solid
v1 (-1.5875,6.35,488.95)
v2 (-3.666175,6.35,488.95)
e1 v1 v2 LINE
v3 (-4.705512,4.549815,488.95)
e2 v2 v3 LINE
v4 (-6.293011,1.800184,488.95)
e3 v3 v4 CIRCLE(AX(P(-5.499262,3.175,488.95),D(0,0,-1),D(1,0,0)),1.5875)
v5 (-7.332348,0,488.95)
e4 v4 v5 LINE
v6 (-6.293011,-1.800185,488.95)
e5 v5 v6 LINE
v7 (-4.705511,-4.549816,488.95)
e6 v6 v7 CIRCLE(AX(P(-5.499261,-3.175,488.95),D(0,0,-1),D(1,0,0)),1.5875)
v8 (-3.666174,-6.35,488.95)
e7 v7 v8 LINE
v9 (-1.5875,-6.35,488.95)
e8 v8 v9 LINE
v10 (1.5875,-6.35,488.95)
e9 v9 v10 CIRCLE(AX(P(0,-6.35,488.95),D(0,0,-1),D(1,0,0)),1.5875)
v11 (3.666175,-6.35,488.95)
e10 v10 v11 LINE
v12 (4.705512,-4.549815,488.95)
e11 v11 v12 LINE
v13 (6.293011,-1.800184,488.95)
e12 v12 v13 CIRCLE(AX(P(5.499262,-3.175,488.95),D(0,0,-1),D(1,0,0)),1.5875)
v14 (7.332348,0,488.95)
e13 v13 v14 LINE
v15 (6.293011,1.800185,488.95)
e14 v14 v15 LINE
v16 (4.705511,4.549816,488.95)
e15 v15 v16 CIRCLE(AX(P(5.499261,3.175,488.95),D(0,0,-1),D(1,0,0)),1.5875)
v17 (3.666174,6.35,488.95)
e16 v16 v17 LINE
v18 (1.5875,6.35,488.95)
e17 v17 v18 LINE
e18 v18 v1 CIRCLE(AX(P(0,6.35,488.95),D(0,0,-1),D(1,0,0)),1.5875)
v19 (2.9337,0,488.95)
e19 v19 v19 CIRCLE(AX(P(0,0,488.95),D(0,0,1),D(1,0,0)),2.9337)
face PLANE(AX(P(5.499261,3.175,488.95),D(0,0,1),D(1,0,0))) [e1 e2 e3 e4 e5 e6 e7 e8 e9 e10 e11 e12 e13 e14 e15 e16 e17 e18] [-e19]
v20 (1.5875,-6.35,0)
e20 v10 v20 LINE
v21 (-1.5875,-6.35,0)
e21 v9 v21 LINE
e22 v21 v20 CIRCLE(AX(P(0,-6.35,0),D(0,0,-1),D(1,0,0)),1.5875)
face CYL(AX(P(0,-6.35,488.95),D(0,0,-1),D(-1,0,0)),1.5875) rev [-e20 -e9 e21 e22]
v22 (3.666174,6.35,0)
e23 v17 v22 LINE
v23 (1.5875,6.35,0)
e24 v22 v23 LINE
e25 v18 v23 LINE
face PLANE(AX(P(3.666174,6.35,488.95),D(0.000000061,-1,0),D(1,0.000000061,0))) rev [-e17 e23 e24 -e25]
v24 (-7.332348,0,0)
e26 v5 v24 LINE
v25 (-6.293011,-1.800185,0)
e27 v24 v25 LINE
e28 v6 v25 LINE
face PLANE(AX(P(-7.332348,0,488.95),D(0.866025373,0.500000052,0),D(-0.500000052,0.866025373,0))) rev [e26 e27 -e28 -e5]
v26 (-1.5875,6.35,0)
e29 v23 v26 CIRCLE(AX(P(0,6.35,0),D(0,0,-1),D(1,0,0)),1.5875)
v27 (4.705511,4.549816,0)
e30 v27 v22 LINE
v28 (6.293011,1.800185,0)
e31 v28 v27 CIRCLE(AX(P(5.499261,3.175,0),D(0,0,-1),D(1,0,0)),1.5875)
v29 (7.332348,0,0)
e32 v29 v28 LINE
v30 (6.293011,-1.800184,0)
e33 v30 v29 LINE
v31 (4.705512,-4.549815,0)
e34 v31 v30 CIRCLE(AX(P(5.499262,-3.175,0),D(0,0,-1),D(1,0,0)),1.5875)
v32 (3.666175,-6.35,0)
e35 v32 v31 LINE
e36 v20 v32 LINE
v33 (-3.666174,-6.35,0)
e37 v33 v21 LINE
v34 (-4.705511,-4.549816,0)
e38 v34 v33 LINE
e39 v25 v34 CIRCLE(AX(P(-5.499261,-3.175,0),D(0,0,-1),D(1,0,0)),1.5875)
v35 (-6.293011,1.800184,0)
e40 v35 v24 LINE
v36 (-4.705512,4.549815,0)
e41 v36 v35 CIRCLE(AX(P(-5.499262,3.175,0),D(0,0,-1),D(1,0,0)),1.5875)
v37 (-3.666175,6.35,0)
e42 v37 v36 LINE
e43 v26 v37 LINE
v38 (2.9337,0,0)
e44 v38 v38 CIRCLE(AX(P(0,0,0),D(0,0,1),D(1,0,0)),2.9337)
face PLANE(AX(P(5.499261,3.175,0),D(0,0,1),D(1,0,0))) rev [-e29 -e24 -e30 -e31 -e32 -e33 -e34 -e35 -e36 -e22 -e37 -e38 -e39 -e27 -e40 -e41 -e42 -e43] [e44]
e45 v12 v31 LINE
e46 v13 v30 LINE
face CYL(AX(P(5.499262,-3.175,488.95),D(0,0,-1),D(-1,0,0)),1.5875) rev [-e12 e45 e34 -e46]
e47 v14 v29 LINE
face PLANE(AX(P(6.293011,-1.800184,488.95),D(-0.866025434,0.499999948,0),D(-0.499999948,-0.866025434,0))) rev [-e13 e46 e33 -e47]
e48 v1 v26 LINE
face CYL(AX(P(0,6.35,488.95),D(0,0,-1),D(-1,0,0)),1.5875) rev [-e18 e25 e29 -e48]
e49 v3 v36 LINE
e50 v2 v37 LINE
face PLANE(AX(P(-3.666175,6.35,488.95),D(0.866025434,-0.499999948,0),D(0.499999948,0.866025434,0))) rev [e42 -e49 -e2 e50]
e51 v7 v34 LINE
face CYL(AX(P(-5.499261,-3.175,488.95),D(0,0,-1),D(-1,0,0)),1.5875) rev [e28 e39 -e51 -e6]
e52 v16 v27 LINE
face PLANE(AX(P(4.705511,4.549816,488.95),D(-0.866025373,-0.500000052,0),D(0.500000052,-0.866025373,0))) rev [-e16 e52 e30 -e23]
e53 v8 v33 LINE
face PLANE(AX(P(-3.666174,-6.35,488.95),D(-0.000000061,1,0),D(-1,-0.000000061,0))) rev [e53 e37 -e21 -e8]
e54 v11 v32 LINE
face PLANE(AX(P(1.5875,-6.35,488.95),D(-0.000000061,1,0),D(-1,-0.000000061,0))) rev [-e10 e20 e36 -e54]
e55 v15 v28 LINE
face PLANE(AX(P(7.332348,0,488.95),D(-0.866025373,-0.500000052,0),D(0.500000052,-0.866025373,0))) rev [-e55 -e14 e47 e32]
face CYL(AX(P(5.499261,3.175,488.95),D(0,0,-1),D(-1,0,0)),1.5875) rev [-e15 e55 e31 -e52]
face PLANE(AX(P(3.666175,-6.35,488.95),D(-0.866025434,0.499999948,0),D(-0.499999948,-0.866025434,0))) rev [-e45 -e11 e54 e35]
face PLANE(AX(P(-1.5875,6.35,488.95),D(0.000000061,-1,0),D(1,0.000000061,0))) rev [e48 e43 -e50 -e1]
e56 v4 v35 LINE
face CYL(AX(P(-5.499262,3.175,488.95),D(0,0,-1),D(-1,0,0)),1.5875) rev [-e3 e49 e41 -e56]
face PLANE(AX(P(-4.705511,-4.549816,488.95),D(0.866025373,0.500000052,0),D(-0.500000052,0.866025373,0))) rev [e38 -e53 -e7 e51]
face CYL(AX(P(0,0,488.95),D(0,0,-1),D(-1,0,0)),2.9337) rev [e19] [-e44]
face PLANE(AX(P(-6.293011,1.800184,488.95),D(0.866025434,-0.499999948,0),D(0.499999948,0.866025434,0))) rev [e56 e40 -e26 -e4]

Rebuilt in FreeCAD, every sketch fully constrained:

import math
import FreeCAD as App
import Part
import Sketcher

V = App.Vector
Q = App.Units.Quantity

doc = App.newDocument("Part")
params = doc.addObject("Spreadsheet::Sheet", "Params")
for row, (alias, value) in enumerate([
    ("sketch1_diameter", "0.231 in"),
    ("sketch1_radius", "0.0625 in"),
    ("pad1_length", "19.25 in"),
], start=1):
    params.set(f"A{row}", alias)
    params.set(f"B{row}", "=" + value)
    params.setAlias(f"B{row}", alias)

body = doc.addObject("PartDesign::Body", "Body")

sketch1 = body.newObject("Sketcher::SketchObject", "Sketch")
sketch1.AttachmentSupport = (doc.getObject("XY_Plane"), [""])
sketch1.MapMode = "FlatFace"
sketch1.addGeometry(Part.LineSegment(V(-1.6, 6.3, 0), V(-3.7, 6.3, 0)), False)
sketch1.addGeometry(Part.LineSegment(V(-3.7, 6.3, 0), V(-4.7, 4.5, 0)), False)
sketch1.addGeometry(Part.ArcOfCircle(Part.Circle(V(-5.5, 3.2, 0), V(0, 0, 1), 1.6), math.radians(-120), math.radians(60)), False)
sketch1.addGeometry(Part.LineSegment(V(-6.3, 1.8, 0), V(-7.3, 0, 0)), False)
sketch1.addGeometry(Part.LineSegment(V(-7.3, 0, 0), V(-6.3, -1.8, 0)), False)
sketch1.addGeometry(Part.ArcOfCircle(Part.Circle(V(-5.5, -3.2, 0), V(0, 0, 1), 1.6), math.radians(-60), math.radians(120)), False)
sketch1.addGeometry(Part.LineSegment(V(-4.7, -4.5, 0), V(-3.7, -6.4, 0)), False)
sketch1.addGeometry(Part.LineSegment(V(-3.7, -6.4, 0), V(-1.6, -6.4, 0)), False)
sketch1.addGeometry(Part.ArcOfCircle(Part.Circle(V(0, -6.3, 0), V(0, 0, 1), 1.6), math.radians(0), math.radians(180)), False)
sketch1.addGeometry(Part.LineSegment(V(1.6, -6.3, 0), V(3.7, -6.3, 0)), False)
sketch1.addGeometry(Part.LineSegment(V(3.7, -6.3, 0), V(4.7, -4.5, 0)), False)
sketch1.addGeometry(Part.ArcOfCircle(Part.Circle(V(5.5, -3.2, 0), V(0, 0, 1), 1.6), math.radians(60), math.radians(240)), False)
sketch1.addGeometry(Part.LineSegment(V(6.3, -1.8, 0), V(7.3, 0, 0)), False)
sketch1.addGeometry(Part.LineSegment(V(7.3, 0, 0), V(6.3, 1.8, 0)), False)
sketch1.addGeometry(Part.ArcOfCircle(Part.Circle(V(5.5, 3.2, 0), V(0, 0, 1), 1.6), math.radians(120), math.radians(300)), False)
sketch1.addGeometry(Part.LineSegment(V(4.7, 4.5, 0), V(3.7, 6.4, 0)), False)
sketch1.addGeometry(Part.LineSegment(V(3.7, 6.4, 0), V(1.6, 6.4, 0)), False)
sketch1.addGeometry(Part.ArcOfCircle(Part.Circle(V(0, 6.3, 0), V(0, 0, 1), 1.6), math.radians(-180), math.radians(0)), False)
sketch1.addGeometry(Part.Circle(V(0, 0, 0), V(0, 0, 1), 2.9), False)
sketch1.addConstraint(Sketcher.Constraint("Coincident", 0, 2, 1, 1))
sketch1.addConstraint(Sketcher.Constraint("Coincident", 1, 2, 2, 2))
sketch1.addConstraint(Sketcher.Constraint("Coincident", 2, 1, 3, 1))
sketch1.addConstraint(Sketcher.Constraint("Coincident", 3, 2, 4, 1))
sketch1.addConstraint(Sketcher.Constraint("Coincident", 4, 2, 5, 2))
sketch1.addConstraint(Sketcher.Constraint("Coincident", 5, 1, 6, 1))
sketch1.addConstraint(Sketcher.Constraint("Coincident", 6, 2, 7, 1))
sketch1.addConstraint(Sketcher.Constraint("Coincident", 7, 2, 8, 2))
sketch1.addConstraint(Sketcher.Constraint("Coincident", 8, 1, 9, 1))
sketch1.addConstraint(Sketcher.Constraint("Coincident", 9, 2, 10, 1))
sketch1.addConstraint(Sketcher.Constraint("Coincident", 10, 2, 11, 2))
sketch1.addConstraint(Sketcher.Constraint("Coincident", 11, 1, 12, 1))
sketch1.addConstraint(Sketcher.Constraint("Coincident", 12, 2, 13, 1))
sketch1.addConstraint(Sketcher.Constraint("Coincident", 13, 2, 14, 2))
sketch1.addConstraint(Sketcher.Constraint("Coincident", 14, 1, 15, 1))
sketch1.addConstraint(Sketcher.Constraint("Coincident", 15, 2, 16, 1))
sketch1.addConstraint(Sketcher.Constraint("Coincident", 16, 2, 17, 2))
sketch1.addConstraint(Sketcher.Constraint("Coincident", 17, 1, 0, 1))
sketch1.addConstraint(Sketcher.Constraint("Horizontal", 0))
sketch1.addConstraint(Sketcher.Constraint("Horizontal", 7))
sketch1.addConstraint(Sketcher.Constraint("Horizontal", 9))
sketch1.addConstraint(Sketcher.Constraint("Horizontal", 16))
sketch1.addConstraint(Sketcher.Constraint("Coincident", 18, 3, -1, 1))
sketch1.addConstraint(Sketcher.Constraint("Equal", 2, 5))
sketch1.addConstraint(Sketcher.Constraint("Equal", 5, 8))
sketch1.addConstraint(Sketcher.Constraint("Equal", 8, 11))
sketch1.addConstraint(Sketcher.Constraint("Equal", 11, 14))
sketch1.addConstraint(Sketcher.Constraint("Equal", 14, 17))
sketch1.addConstraint(Sketcher.Constraint("Symmetric", 2, 3, 11, 3, -1, 1))
sketch1.addConstraint(Sketcher.Constraint("Symmetric", 5, 3, 14, 3, -1, 1))
sketch1.addConstraint(Sketcher.Constraint("Symmetric", 8, 3, 17, 3, -1, 1))
sketch1.addConstraint(Sketcher.Constraint("Symmetric", 0, 2, 9, 2, -1, 1))
sketch1.addConstraint(Sketcher.Constraint("Symmetric", 3, 2, 12, 2, -1, 1))
sketch1.addConstraint(Sketcher.Constraint("Symmetric", 6, 2, 15, 2, -1, 1))
sketch1.addConstraint(Sketcher.Constraint("Symmetric", 5, 3, 11, 3, -2))
sketch1.addConstraint(Sketcher.Constraint("Symmetric", 7, 2, 8, 1, -2))
sketch1.addConstraint(Sketcher.Constraint("PointOnObject", 3, 2, -1))
sketch1.addConstraint(Sketcher.Constraint("Parallel", 1, 3))
sketch1.addConstraint(Sketcher.Constraint("Parallel", 4, 6))
sketch1.addConstraint(Sketcher.Constraint("Parallel", 3, 10))
sketch1.addConstraint(Sketcher.Constraint("Parallel", 10, 12))
sketch1.addConstraint(Sketcher.Constraint("Parallel", 6, 13))
sketch1.addConstraint(Sketcher.Constraint("Parallel", 13, 15))
sketch1.addConstraint(Sketcher.Constraint("Horizontal", 17, 3, 0, 2))
sketch1.addConstraint(Sketcher.Constraint("Horizontal", 5, 1, 10, 2))
sketch1.addConstraint(Sketcher.Constraint("Horizontal", 4, 2, 11, 1))
sketch1.addConstraint(Sketcher.Constraint("Equal", 1, 3))
sketch1.addConstraint(Sketcher.Constraint("Diameter", 18, Q("0.231 in")))
sketch1.addConstraint(Sketcher.Constraint("Angle", 1, Q("-119.999997 deg")))
sketch1.addConstraint(Sketcher.Constraint("Radius", 2, Q("0.0625 in")))
sketch1.addConstraint(Sketcher.Constraint("DistanceY", 8, 3, 17, 3, Q("0.5 in")))
sketch1.addConstraint(Sketcher.Constraint("DistanceY", 5, 3, 2, 3, Q("0.25 in")))
sketch1.addConstraint(Sketcher.Constraint("DistanceX", 2, 3, 1, 2, Q("0.03125 in")))
sketch1.addConstraint(Sketcher.Constraint("DistanceX", 0, 2, 0, 1, Q("2.078674 mm")))
sketch1.setExpression("Constraints[47]", "Params.sketch1_diameter")
sketch1.setExpression("Constraints[49]", "Params.sketch1_radius")
pad1 = body.newObject("PartDesign::Pad", "Pad")
pad1.Profile = sketch1
pad1.setExpression("Length", "Params.pad1_length")

doc.recompute()
